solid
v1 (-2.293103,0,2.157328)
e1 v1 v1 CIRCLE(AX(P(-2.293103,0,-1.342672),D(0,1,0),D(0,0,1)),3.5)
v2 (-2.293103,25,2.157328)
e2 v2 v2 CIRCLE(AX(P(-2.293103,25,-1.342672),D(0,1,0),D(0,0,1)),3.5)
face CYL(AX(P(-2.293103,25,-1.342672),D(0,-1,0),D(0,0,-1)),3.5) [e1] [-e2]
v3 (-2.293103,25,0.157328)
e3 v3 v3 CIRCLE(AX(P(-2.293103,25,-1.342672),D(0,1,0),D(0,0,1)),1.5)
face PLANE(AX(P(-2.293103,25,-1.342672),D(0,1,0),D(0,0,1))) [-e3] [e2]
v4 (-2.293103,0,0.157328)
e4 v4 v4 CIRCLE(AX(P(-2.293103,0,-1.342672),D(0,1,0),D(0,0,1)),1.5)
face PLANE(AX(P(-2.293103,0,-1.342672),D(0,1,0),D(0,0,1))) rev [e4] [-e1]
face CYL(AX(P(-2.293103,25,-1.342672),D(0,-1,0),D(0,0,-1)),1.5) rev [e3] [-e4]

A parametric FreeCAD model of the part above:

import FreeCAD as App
import Part
import Sketcher
Q = App.Units.Quantity

doc = App.newDocument("Part")
body = doc.addObject("PartDesign::Body", "Body")

sketch1 = body.newObject("Sketcher::SketchObject", "Sketch")
sketch1.AttachmentSupport = (doc.getObject("XZ_Plane"), [""])
sketch1.MapMode = "FlatFace"
sketch1.addGeometry(Part.Circle(App.Vector(-2.3, -1.3, 0), App.Vector(0, 0, 1), 3.5), False)
sketch1.addGeometry(Part.Circle(App.Vector(-2.3, -1.3, 0), App.Vector(0, 0, 1), 1.5), False)
sketch1.addConstraint(Sketcher.Constraint("Coincident", 1, 3, 0, 3))
sketch1.addConstraint(Sketcher.Constraint("Diameter", 0, Q("7 mm")))
sketch1.addConstraint(Sketcher.Constraint("Diameter", 1, Q("3 mm")))
sketch1.addConstraint(Sketcher.Constraint("DistanceX", 0, 3, -1, 1, Q("2.293103 mm")))
sketch1.addConstraint(Sketcher.Constraint("DistanceY", 0, 3, -1, 1, Q("1.342672 mm")))
pad1 = body.newObject("PartDesign::Pad", "Pad")
pad1.Profile = sketch1
pad1.Length = 25
pad1.Reversed = True

doc.recompute()
